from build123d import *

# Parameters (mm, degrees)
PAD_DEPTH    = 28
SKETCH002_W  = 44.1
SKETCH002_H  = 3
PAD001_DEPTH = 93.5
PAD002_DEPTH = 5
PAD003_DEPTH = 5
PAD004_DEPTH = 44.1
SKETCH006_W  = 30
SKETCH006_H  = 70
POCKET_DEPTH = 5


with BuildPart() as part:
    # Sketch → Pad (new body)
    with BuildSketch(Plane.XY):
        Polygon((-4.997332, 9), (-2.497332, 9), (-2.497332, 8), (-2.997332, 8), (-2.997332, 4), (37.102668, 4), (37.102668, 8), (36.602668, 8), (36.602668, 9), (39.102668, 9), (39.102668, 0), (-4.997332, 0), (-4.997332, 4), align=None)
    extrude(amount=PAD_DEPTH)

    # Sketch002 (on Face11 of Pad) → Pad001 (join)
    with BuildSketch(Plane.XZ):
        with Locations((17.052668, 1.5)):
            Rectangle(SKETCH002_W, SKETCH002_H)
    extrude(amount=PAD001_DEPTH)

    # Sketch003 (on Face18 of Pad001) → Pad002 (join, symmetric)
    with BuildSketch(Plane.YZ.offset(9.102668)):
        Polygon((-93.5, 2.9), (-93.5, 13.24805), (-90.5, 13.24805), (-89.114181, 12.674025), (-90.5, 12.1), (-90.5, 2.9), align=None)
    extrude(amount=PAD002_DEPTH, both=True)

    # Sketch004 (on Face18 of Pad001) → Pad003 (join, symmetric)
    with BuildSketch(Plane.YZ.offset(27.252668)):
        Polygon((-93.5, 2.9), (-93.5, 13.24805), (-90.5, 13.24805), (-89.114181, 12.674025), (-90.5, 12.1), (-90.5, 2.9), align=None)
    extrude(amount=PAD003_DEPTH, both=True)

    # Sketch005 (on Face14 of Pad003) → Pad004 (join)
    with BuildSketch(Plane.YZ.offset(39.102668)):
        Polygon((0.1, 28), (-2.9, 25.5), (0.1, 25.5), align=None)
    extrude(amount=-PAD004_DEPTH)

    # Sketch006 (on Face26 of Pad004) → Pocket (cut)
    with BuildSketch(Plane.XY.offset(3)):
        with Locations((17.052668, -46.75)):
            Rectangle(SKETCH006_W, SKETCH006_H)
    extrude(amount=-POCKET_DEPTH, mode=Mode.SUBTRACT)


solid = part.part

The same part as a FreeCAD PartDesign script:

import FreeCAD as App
import Part
import Sketcher

V = App.Vector
Q = App.Units.Quantity

doc = App.newDocument("Part")
body = doc.addObject("PartDesign::Body", "Body")

# Sketch on XY plane
sketch1 = body.newObject("Sketcher::SketchObject", "Sketch")
sketch1.AttachmentSupport = (doc.getObject("XY_Plane"), [""])
sketch1.MapMode = "FlatFace"
sketch1.addGeometry([
    Part.LineSegment(V(-2.5, 9, 0), V(-5, 9, 0)),  # 0
    Part.LineSegment(V(-5, 9, 0), V(-5, 0, 0)),  # 1
    Part.LineSegment(V(-5, 0, 0), V(39.1, 0, 0)),  # 2
    Part.LineSegment(V(39.1, 0, 0), V(39.1, 9, 0)),  # 3
    Part.LineSegment(V(39.1, 9, 0), V(36.6, 9, 0)),  # 4
    Part.LineSegment(V(36.6, 9, 0), V(36.6, 8, 0)),  # 5
    Part.LineSegment(V(36.6, 8, 0), V(37.1, 8, 0)),  # 6
    Part.LineSegment(V(37.1, 8, 0), V(37.1, 4, 0)),  # 7
    Part.LineSegment(V(37.1, 4, 0), V(-3, 4, 0)),  # 8
    Part.LineSegment(V(-3, 4, 0), V(-3, 8, 0)),  # 9
    Part.LineSegment(V(-3, 8, 0), V(-2.5, 8, 0)),  # 10
    Part.LineSegment(V(-2.5, 8, 0), V(-2.5, 9, 0)),  # 11
], False)
sketch1.addConstraint([
    Sketcher.Constraint("Coincident", 0, 2, 1, 1),
    Sketcher.Constraint("Coincident", 1, 2, 2, 1),
    Sketcher.Constraint("Coincident", 2, 2, 3, 1),
    Sketcher.Constraint("Coincident", 3, 2, 4, 1),
    Sketcher.Constraint("Coincident", 4, 2, 5, 1),
    Sketcher.Constraint("Coincident", 5, 2, 6, 1),
    Sketcher.Constraint("Coincident", 6, 2, 7, 1),
    Sketcher.Constraint("Coincident", 7, 2, 8, 1),
    Sketcher.Constraint("Coincident", 8, 2, 9, 1),
    Sketcher.Constraint("Coincident", 9, 2, 10, 1),
    Sketcher.Constraint("Coincident", 10, 2, 11, 1),
    Sketcher.Constraint("Coincident", 11, 2, 0, 1),
    Sketcher.Constraint("Horizontal", 0),
    Sketcher.Constraint("Vertical", 1),
    Sketcher.Constraint("Horizontal", 2),
    Sketcher.Constraint("Vertical", 3),
    Sketcher.Constraint("Horizontal", 4),
    Sketcher.Constraint("Vertical", 5),
    Sketcher.Constraint("Horizontal", 6),
    Sketcher.Constraint("Vertical", 7),
    Sketcher.Constraint("Horizontal", 8),
    Sketcher.Constraint("Vertical", 9),
    Sketcher.Constraint("Horizontal", 10),
    Sketcher.Constraint("Vertical", 11),
    Sketcher.Constraint("PointOnObject", 1, 2, -1),
    Sketcher.Constraint("Horizontal", 0, 2, 3, 2),
    Sketcher.Constraint("Horizontal", 6, 2, 9, 2),
    Sketcher.Constraint("Equal", 0, 4),
    Sketcher.Constraint("Equal", 6, 10),
    Sketcher.Constraint("DistanceY", 1, 2, 1, 1, Q("9 mm")),
    Sketcher.Constraint("DistanceY", 5, 2, 5, 1, Q("1 mm")),
    Sketcher.Constraint("DistanceY", 7, 2, 7, 1, Q("4 mm")),
    Sketcher.Constraint("DistanceX", 0, 2, 0, 1, Q("2.5 mm")),
    Sketcher.Constraint("DistanceX", 2, 1, 2, 2, Q("44.1 mm")),
    Sketcher.Constraint("DistanceX", 6, 1, 6, 2, Q("0.5 mm")),
    Sketcher.Constraint("DistanceX", 0, 2, -1, 1, Q("4.997332 mm")),
])
pad1 = body.newObject("PartDesign::Pad", "Pad")
pad1.Profile = sketch1
pad1.Length = 28

# Sketch on XZ plane
sketch2 = body.newObject("Sketcher::SketchObject", "Sketch001")
sketch2.AttachmentSupport = (doc.getObject("XZ_Plane"), [""])
sketch2.MapMode = "FlatFace"
sketch2.addGeometry([
    Part.LineSegment(V(-5, 3, 0), V(-5, 0, 0)),
    Part.LineSegment(V(-5, 0, 0), V(39.1, 0, 0)),
    Part.LineSegment(V(39.1, 0, 0), V(39.1, 3, 0)),
    Part.LineSegment(V(39.1, 3, 0), V(-5, 3, 0)),
], False)
sketch2.addConstraint([
    Sketcher.Constraint("Coincident", 0, 2, 1, 1),
    Sketcher.Constraint("Coincident", 1, 2, 2, 1),
    Sketcher.Constraint("Coincident", 2, 2, 3, 1),
    Sketcher.Constraint("Coincident", 3, 2, 0, 1),
    Sketcher.Constraint("Vertical", 0),
    Sketcher.Constraint("Horizontal", 1),
    Sketcher.Constraint("Vertical", 2),
    Sketcher.Constraint("Horizontal", 3),
    Sketcher.Constraint("PointOnObject", 0, 2, -1),
    Sketcher.Constraint("DistanceY", 0, 2, 0, 1, Q("3 mm")),
    Sketcher.Constraint("DistanceX", 1, 1, 1, 2, Q("44.1 mm")),
    Sketcher.Constraint("DistanceX", 0, 2, -1, 1, Q("4.997332 mm")),
])
pad2 = body.newObject("PartDesign::Pad", "Pad001")
pad2.Profile = sketch2
pad2.Length = 93.5

# Sketch on YZ plane
sketch3 = body.newObject("Sketcher::SketchObject", "Sketch002")
sketch3.AttachmentSupport = (doc.getObject("YZ_Plane"), [""])
sketch3.MapMode = "FlatFace"
sketch3.AttachmentOffset = App.Placement(V(0, 0, 9.102668), App.Rotation())
sketch3.addGeometry([
    Part.LineSegment(V(-93.5, 13.2, 0), V(-93.5, 2.9, 0)),  # 0
    Part.LineSegment(V(-93.5, 2.9, 0), V(-90.5, 2.9, 0)),  # 1
    Part.LineSegment(V(-90.5, 2.9, 0), V(-90.5, 12.1, 0)),  # 2
    Part.LineSegment(V(-90.5, 12.1, 0), V(-89.1, 12.7, 0)),  # 3
    Part.LineSegment(V(-89.1, 12.7, 0), V(-90.5, 13.2, 0)),  # 4
    Part.LineSegment(V(-90.5, 13.2, 0), V(-93.5, 13.2, 0)),  # 5
], False)
sketch3.addConstraint([
    Sketcher.Constraint("Coincident", 0, 2, 1, 1),
    Sketcher.Constraint("Coincident", 1, 2, 2, 1),
    Sketcher.Constraint("Coincident", 2, 2, 3, 1),
    Sketcher.Constraint("Coincident", 3, 2, 4, 1),
    Sketcher.Constraint("Coincident", 4, 2, 5, 1),
    Sketcher.Constraint("Coincident", 5, 2, 0, 1),
    Sketcher.Constraint("Vertical", 0),
    Sketcher.Constraint("Horizontal", 1),
    Sketcher.Constraint("Vertical", 2),
    Sketcher.Constraint("Horizontal", 5),
    Sketcher.Constraint("Vertical", 2, 2, 4, 2),
    Sketcher.Constraint("Equal", 3, 4),
    Sketcher.Constraint("DistanceX", 1, 1, 1, 2, Q("3 mm")),
    Sketcher.Constraint("DistanceY", 2, 1, 2, 2, Q("9.2 mm")),
    Sketcher.Constraint("Angle", 3, Q("22.499999 deg")),
    Sketcher.Constraint("Distance", 3, Q("1.5 mm")),
    Sketcher.Constraint("DistanceX", 0, 2, -1, 1, Q("93.5 mm")),
    Sketcher.Constraint("DistanceY", -1, 1, 0, 2, Q("2.9 mm")),
])
pad3 = body.newObject("PartDesign::Pad", "Pad002")
pad3.Profile = sketch3
pad3.Length = 10
pad3.Midplane = True

# Sketch on YZ plane
sketch4 = body.newObject("Sketcher::SketchObject", "Sketch003")
sketch4.AttachmentSupport = (doc.getObject("YZ_Plane"), [""])
sketch4.MapMode = "FlatFace"
sketch4.AttachmentOffset = App.Placement(V(0, 0, 27.252668), App.Rotation())
sketch4.addGeometry([
    Part.LineSegment(V(-93.5, 13.2, 0), V(-93.5, 2.9, 0)),  # 0
    Part.LineSegment(V(-93.5, 2.9, 0), V(-90.5, 2.9, 0)),  # 1
    Part.LineSegment(V(-90.5, 2.9, 0), V(-90.5, 12.1, 0)),  # 2
    Part.LineSegment(V(-90.5, 12.1, 0), V(-89.1, 12.7, 0)),  # 3
    Part.LineSegment(V(-89.1, 12.7, 0), V(-90.5, 13.2, 0)),  # 4
    Part.LineSegment(V(-90.5, 13.2, 0), V(-93.5, 13.2, 0)),  # 5
], False)
sketch4.addConstraint([
    Sketcher.Constraint("Coincident", 0, 2, 1, 1),
    Sketcher.Constraint("Coincident", 1, 2, 2, 1),
    Sketcher.Constraint("Coincident", 2, 2, 3, 1),
    Sketcher.Constraint("Coincident", 3, 2, 4, 1),
    Sketcher.Constraint("Coincident", 4, 2, 5, 1),
    Sketcher.Constraint("Coincident", 5, 2, 0, 1),
    Sketcher.Constraint("Vertical", 0),
    Sketcher.Constraint("Horizontal", 1),
    Sketcher.Constraint("Vertical", 2),
    Sketcher.Constraint("Horizontal", 5),
    Sketcher.Constraint("Vertical", 2, 2, 4, 2),
    Sketcher.Constraint("Equal", 3, 4),
    Sketcher.Constraint("DistanceX", 1, 1, 1, 2, Q("3 mm")),
    Sketcher.Constraint("DistanceY", 2, 1, 2, 2, Q("9.2 mm")),
    Sketcher.Constraint("Angle", 3, Q("22.499999 deg")),
    Sketcher.Constraint("Distance", 3, Q("1.5 mm")),
    Sketcher.Constraint("DistanceX", 0, 2, -1, 1, Q("93.5 mm")),
    Sketcher.Constraint("DistanceY", -1, 1, 0, 2, Q("2.9 mm")),
])
pad4 = body.newObject("PartDesign::Pad", "Pad003")
pad4.Profile = sketch4
pad4.Length = 10
pad4.Midplane = True

# Sketch on YZ plane
sketch5 = body.newObject("Sketcher::SketchObject", "Sketch004")
sketch5.AttachmentSupport = (doc.getObject("YZ_Plane"), [""])
sketch5.MapMode = "FlatFace"
sketch5.AttachmentOffset = App.Placement(V(0, 0, 39.102668), App.Rotation())
sketch5.addGeometry([
    Part.LineSegment(V(0.1, 28, 0), V(-2.9, 25.5, 0)),
    Part.LineSegment(V(-2.9, 25.5, 0), V(0.1, 25.5, 0)),
    Part.LineSegment(V(0.1, 25.5, 0), V(0.1, 28, 0)),
], False)
sketch5.addConstraint([
    Sketcher.Constraint("Coincident", 0, 2, 1, 1),
    Sketcher.Constraint("Coincident", 1, 2, 2, 1),
    Sketcher.Constraint("Coincident", 2, 2, 0, 1),
    Sketcher.Constraint("Horizontal", 1),
    Sketcher.Constraint("Vertical", 2),
    Sketcher.Constraint("DistanceX", 1, 1, 1, 2, Q("3 mm")),
    Sketcher.Constraint("DistanceY", 2, 1, 2, 2, Q("2.5 mm")),
    Sketcher.Constraint("DistanceY", -1, 1, 2, 2, Q("28 mm")),
    Sketcher.Constraint("DistanceX", 0, 2, -1, 1, Q("2.9 mm")),
])
pad5 = body.newObject("PartDesign::Pad", "Pad004")
pad5.Profile = sketch5
pad5.Length = 44.1
pad5.Reversed = True

# Sketch on XY plane
sketch6 = body.newObject("Sketcher::SketchObject", "Sketch005")
sketch6.AttachmentSupport = (doc.getObject("XY_Plane"), [""])
sketch6.MapMode = "FlatFace"
sketch6.AttachmentOffset = App.Placement(V(0, 0, 3), App.Rotation())
sketch6.addGeometry([
    Part.LineSegment(V(2, -12, 0), V(2, -82, 0)),
    Part.LineSegment(V(2, -82, 0), V(32, -82, 0)),
    Part.LineSegment(V(32, -82, 0), V(32, -12, 0)),
    Part.LineSegment(V(32, -12, 0), V(2, -12, 0)),
], False)
sketch6.addConstraint([
    Sketcher.Constraint("Coincident", 0, 2, 1, 1),
    Sketcher.Constraint("Coincident", 1, 2, 2, 1),
    Sketcher.Constraint("Coincident", 2, 2, 3, 1),
    Sketcher.Constraint("Coincident", 3, 2, 0, 1),
    Sketcher.Constraint("Vertical", 0),
    Sketcher.Constraint("Horizontal", 1),
    Sketcher.Constraint("Vertical", 2),
    Sketcher.Constraint("Horizontal", 3),
    Sketcher.Constraint("DistanceX", 1, 1, 1, 2, Q("30 mm")),
    Sketcher.Constraint("DistanceY", 0, 2, 0, 1, Q("70 mm")),
    Sketcher.Constraint("DistanceY", 0, 2, -1, 1, Q("81.75 mm")),
    Sketcher.Constraint("DistanceX", -1, 1, 0, 2, Q("2.052668 mm")),
])
pocket1 = body.newObject("PartDesign::Pocket", "Pocket")
pocket1.Profile = sketch6
pocket1.Length = 5

doc.recompute()
